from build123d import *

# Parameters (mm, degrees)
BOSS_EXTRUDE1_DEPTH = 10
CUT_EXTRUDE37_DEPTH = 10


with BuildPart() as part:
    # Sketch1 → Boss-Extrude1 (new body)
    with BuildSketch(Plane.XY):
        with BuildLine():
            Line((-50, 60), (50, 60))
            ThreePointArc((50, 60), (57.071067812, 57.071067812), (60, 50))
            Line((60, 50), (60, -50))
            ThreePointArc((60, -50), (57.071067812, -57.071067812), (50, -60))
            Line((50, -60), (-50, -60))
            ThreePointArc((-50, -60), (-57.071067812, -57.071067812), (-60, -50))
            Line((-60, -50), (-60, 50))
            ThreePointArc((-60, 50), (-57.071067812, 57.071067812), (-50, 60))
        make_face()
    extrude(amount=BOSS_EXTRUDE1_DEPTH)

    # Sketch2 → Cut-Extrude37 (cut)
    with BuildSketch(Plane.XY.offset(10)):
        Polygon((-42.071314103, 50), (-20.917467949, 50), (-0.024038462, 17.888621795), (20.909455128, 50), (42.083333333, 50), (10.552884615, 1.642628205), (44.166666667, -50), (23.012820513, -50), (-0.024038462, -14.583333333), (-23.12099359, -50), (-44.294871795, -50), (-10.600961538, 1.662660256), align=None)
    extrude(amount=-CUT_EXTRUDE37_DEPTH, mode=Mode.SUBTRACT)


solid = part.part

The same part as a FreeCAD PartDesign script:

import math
import FreeCAD as App
import Part
import Sketcher

V = App.Vector
Q = App.Units.Quantity


def add_polygon(sketch, points):
    """Adds a closed chain of lines whose ends are joined by coincident constraints."""
    first, n = sketch.GeometryCount, len(points)
    for a, b in zip(points, points[1:] + points[:1]):
        sketch.addGeometry(Part.LineSegment(App.Vector(*a, 0), App.Vector(*b, 0)), False)
    for i in range(n):
        sketch.addConstraint(Sketcher.Constraint("Coincident", first + i, 2, first + (i + 1) % n, 1))

doc = App.newDocument("Part")
body = doc.addObject("PartDesign::Body", "Body")

# Sketch on XY plane
sketch1 = body.newObject("Sketcher::SketchObject", "Sketch")
sketch1.AttachmentSupport = (doc.getObject("XY_Plane"), [""])
sketch1.MapMode = "FlatFace"
sketch1.addGeometry([
    Part.LineSegment(V(50, 60, 0), V(-50, 60, 0)),  # 0
    Part.ArcOfCircle(Part.Circle(V(-50, 50, 0), V(0, 0, 1), 10), math.radians(90), math.radians(180)),  # 1
    Part.LineSegment(V(-60, 50, 0), V(-60, -50, 0)),  # 2
    Part.ArcOfCircle(Part.Circle(V(-50, -50, 0), V(0, 0, 1), 10), math.radians(180), math.radians(270)),  # 3
    Part.LineSegment(V(-50, -60, 0), V(50, -60, 0)),  # 4
    Part.ArcOfCircle(Part.Circle(V(50, -50, 0), V(0, 0, 1), 10), math.radians(-90), math.radians(0)),  # 5
    Part.LineSegment(V(60, -50, 0), V(60, 50, 0)),  # 6
    Part.ArcOfCircle(Part.Circle(V(50, 50, 0), V(0, 0, 1), 10), math.radians(0), math.radians(90)),  # 7
], False)
sketch1.addConstraint([
    Sketcher.Constraint("Tangent", 0, 2, 1, 1),
    Sketcher.Constraint("Tangent", 1, 2, 2, 1),
    Sketcher.Constraint("Tangent", 2, 2, 3, 1),
    Sketcher.Constraint("Tangent", 3, 2, 4, 1),
    Sketcher.Constraint("Tangent", 4, 2, 5, 1),
    Sketcher.Constraint("Tangent", 5, 2, 6, 1),
    Sketcher.Constraint("Tangent", 6, 2, 7, 1),
    Sketcher.Constraint("Tangent", 7, 2, 0, 1),
    Sketcher.Constraint("Horizontal", 0),
    Sketcher.Constraint("Vertical", 2),
    Sketcher.Constraint("Horizontal", 4),
    Sketcher.Constraint("Vertical", 6),
    Sketcher.Constraint("Equal", 1, 3),
    Sketcher.Constraint("Equal", 3, 5),
    Sketcher.Constraint("Equal", 5, 7),
    Sketcher.Constraint("Symmetric", 1, 3, 5, 3, -1, 1),
    Sketcher.Constraint("Equal", 4, 2),
    Sketcher.Constraint("Radius", 1, Q("10 mm")),
    Sketcher.Constraint("DistanceX", 0, 2, 0, 1, Q("100 mm")),
])
pad1 = body.newObject("PartDesign::Pad", "Pad")
pad1.Profile = sketch1
pad1.Length = 10

# Sketch on XY plane
sketch2 = body.newObject("Sketcher::SketchObject", "Sketch001")
sketch2.AttachmentSupport = (doc.getObject("XY_Plane"), [""])
sketch2.MapMode = "FlatFace"
sketch2.AttachmentOffset = App.Placement(V(0, 0, 10), App.Rotation())
add_polygon(sketch2, [(-20.917468, 50), (-42.071314, 50), (-10.600962, 1.66266), (-44.294872, -50), (-23.120994, -50), (-0.024038, -14.583333), (23.012821, -50), (44.166667, -50), (10.552885, 1.642628), (42.083333, 50), (20.909455, 50), (-0.024038, 17.888622)])  # lines 0-11
sketch2.addConstraint([
    Sketcher.Constraint("Horizontal", 0),
    Sketcher.Constraint("Horizontal", 3),
    Sketcher.Constraint("Horizontal", 6),
    Sketcher.Constraint("Horizontal", 9),
    Sketcher.Constraint("Horizontal", 3, 2, 5, 2),
    Sketcher.Constraint("Horizontal", 0, 2, 8, 2),
    Sketcher.Constraint("Vertical", 4, 2, 10, 2),
    Sketcher.Constraint("Equal", 0, 6),
    Sketcher.Constraint("Equal", 3, 9),
    Sketcher.Constraint("DistanceY", -1, 1, 0, 2, Q("50 mm")),
    Sketcher.Constraint("DistanceY", 2, 2, -1, 1, Q("50 mm")),
    Sketcher.Constraint("Distance", 5, Q("42.2497 mm")),
    Sketcher.Constraint("DistanceX", 3, 1, 3, 2, Q("21.173878 mm")),
    Sketcher.Constraint("Distance", 2, Q("61.679089 mm")),
    Sketcher.Constraint("Distance", 11, Q("38.31026 mm")),
    Sketcher.Constraint("DistanceX", 0, 2, 0, 1, Q("21.153846 mm")),
    Sketcher.Constraint("DistanceX", 1, 2, -1, 1, Q("10.600962 mm")),
    Sketcher.Constraint("DistanceY", -1, 1, 1, 2, Q("1.66266 mm")),
    Sketcher.Constraint("DistanceX", 4, 2, -1, 1, Q("0.024038 mm")),
    Sketcher.Constraint("DistanceX", -1, 1, 5, 2, Q("23.012821 mm")),
    Sketcher.Constraint("DistanceY", -1, 1, 7, 2, Q("1.642628 mm")),
    Sketcher.Constraint("DistanceY", -1, 1, 10, 2, Q("17.888622 mm")),
    Sketcher.Constraint("DistanceX", 3, 2, 7, 2, Q("33.673878 mm")),
    Sketcher.Constraint("DistanceX", 7, 2, 8, 2, Q("31.530449 mm")),
])
pocket1 = body.newObject("PartDesign::Pocket", "Pocket")
pocket1.Profile = sketch2
pocket1.Length = 10

doc.recompute()
